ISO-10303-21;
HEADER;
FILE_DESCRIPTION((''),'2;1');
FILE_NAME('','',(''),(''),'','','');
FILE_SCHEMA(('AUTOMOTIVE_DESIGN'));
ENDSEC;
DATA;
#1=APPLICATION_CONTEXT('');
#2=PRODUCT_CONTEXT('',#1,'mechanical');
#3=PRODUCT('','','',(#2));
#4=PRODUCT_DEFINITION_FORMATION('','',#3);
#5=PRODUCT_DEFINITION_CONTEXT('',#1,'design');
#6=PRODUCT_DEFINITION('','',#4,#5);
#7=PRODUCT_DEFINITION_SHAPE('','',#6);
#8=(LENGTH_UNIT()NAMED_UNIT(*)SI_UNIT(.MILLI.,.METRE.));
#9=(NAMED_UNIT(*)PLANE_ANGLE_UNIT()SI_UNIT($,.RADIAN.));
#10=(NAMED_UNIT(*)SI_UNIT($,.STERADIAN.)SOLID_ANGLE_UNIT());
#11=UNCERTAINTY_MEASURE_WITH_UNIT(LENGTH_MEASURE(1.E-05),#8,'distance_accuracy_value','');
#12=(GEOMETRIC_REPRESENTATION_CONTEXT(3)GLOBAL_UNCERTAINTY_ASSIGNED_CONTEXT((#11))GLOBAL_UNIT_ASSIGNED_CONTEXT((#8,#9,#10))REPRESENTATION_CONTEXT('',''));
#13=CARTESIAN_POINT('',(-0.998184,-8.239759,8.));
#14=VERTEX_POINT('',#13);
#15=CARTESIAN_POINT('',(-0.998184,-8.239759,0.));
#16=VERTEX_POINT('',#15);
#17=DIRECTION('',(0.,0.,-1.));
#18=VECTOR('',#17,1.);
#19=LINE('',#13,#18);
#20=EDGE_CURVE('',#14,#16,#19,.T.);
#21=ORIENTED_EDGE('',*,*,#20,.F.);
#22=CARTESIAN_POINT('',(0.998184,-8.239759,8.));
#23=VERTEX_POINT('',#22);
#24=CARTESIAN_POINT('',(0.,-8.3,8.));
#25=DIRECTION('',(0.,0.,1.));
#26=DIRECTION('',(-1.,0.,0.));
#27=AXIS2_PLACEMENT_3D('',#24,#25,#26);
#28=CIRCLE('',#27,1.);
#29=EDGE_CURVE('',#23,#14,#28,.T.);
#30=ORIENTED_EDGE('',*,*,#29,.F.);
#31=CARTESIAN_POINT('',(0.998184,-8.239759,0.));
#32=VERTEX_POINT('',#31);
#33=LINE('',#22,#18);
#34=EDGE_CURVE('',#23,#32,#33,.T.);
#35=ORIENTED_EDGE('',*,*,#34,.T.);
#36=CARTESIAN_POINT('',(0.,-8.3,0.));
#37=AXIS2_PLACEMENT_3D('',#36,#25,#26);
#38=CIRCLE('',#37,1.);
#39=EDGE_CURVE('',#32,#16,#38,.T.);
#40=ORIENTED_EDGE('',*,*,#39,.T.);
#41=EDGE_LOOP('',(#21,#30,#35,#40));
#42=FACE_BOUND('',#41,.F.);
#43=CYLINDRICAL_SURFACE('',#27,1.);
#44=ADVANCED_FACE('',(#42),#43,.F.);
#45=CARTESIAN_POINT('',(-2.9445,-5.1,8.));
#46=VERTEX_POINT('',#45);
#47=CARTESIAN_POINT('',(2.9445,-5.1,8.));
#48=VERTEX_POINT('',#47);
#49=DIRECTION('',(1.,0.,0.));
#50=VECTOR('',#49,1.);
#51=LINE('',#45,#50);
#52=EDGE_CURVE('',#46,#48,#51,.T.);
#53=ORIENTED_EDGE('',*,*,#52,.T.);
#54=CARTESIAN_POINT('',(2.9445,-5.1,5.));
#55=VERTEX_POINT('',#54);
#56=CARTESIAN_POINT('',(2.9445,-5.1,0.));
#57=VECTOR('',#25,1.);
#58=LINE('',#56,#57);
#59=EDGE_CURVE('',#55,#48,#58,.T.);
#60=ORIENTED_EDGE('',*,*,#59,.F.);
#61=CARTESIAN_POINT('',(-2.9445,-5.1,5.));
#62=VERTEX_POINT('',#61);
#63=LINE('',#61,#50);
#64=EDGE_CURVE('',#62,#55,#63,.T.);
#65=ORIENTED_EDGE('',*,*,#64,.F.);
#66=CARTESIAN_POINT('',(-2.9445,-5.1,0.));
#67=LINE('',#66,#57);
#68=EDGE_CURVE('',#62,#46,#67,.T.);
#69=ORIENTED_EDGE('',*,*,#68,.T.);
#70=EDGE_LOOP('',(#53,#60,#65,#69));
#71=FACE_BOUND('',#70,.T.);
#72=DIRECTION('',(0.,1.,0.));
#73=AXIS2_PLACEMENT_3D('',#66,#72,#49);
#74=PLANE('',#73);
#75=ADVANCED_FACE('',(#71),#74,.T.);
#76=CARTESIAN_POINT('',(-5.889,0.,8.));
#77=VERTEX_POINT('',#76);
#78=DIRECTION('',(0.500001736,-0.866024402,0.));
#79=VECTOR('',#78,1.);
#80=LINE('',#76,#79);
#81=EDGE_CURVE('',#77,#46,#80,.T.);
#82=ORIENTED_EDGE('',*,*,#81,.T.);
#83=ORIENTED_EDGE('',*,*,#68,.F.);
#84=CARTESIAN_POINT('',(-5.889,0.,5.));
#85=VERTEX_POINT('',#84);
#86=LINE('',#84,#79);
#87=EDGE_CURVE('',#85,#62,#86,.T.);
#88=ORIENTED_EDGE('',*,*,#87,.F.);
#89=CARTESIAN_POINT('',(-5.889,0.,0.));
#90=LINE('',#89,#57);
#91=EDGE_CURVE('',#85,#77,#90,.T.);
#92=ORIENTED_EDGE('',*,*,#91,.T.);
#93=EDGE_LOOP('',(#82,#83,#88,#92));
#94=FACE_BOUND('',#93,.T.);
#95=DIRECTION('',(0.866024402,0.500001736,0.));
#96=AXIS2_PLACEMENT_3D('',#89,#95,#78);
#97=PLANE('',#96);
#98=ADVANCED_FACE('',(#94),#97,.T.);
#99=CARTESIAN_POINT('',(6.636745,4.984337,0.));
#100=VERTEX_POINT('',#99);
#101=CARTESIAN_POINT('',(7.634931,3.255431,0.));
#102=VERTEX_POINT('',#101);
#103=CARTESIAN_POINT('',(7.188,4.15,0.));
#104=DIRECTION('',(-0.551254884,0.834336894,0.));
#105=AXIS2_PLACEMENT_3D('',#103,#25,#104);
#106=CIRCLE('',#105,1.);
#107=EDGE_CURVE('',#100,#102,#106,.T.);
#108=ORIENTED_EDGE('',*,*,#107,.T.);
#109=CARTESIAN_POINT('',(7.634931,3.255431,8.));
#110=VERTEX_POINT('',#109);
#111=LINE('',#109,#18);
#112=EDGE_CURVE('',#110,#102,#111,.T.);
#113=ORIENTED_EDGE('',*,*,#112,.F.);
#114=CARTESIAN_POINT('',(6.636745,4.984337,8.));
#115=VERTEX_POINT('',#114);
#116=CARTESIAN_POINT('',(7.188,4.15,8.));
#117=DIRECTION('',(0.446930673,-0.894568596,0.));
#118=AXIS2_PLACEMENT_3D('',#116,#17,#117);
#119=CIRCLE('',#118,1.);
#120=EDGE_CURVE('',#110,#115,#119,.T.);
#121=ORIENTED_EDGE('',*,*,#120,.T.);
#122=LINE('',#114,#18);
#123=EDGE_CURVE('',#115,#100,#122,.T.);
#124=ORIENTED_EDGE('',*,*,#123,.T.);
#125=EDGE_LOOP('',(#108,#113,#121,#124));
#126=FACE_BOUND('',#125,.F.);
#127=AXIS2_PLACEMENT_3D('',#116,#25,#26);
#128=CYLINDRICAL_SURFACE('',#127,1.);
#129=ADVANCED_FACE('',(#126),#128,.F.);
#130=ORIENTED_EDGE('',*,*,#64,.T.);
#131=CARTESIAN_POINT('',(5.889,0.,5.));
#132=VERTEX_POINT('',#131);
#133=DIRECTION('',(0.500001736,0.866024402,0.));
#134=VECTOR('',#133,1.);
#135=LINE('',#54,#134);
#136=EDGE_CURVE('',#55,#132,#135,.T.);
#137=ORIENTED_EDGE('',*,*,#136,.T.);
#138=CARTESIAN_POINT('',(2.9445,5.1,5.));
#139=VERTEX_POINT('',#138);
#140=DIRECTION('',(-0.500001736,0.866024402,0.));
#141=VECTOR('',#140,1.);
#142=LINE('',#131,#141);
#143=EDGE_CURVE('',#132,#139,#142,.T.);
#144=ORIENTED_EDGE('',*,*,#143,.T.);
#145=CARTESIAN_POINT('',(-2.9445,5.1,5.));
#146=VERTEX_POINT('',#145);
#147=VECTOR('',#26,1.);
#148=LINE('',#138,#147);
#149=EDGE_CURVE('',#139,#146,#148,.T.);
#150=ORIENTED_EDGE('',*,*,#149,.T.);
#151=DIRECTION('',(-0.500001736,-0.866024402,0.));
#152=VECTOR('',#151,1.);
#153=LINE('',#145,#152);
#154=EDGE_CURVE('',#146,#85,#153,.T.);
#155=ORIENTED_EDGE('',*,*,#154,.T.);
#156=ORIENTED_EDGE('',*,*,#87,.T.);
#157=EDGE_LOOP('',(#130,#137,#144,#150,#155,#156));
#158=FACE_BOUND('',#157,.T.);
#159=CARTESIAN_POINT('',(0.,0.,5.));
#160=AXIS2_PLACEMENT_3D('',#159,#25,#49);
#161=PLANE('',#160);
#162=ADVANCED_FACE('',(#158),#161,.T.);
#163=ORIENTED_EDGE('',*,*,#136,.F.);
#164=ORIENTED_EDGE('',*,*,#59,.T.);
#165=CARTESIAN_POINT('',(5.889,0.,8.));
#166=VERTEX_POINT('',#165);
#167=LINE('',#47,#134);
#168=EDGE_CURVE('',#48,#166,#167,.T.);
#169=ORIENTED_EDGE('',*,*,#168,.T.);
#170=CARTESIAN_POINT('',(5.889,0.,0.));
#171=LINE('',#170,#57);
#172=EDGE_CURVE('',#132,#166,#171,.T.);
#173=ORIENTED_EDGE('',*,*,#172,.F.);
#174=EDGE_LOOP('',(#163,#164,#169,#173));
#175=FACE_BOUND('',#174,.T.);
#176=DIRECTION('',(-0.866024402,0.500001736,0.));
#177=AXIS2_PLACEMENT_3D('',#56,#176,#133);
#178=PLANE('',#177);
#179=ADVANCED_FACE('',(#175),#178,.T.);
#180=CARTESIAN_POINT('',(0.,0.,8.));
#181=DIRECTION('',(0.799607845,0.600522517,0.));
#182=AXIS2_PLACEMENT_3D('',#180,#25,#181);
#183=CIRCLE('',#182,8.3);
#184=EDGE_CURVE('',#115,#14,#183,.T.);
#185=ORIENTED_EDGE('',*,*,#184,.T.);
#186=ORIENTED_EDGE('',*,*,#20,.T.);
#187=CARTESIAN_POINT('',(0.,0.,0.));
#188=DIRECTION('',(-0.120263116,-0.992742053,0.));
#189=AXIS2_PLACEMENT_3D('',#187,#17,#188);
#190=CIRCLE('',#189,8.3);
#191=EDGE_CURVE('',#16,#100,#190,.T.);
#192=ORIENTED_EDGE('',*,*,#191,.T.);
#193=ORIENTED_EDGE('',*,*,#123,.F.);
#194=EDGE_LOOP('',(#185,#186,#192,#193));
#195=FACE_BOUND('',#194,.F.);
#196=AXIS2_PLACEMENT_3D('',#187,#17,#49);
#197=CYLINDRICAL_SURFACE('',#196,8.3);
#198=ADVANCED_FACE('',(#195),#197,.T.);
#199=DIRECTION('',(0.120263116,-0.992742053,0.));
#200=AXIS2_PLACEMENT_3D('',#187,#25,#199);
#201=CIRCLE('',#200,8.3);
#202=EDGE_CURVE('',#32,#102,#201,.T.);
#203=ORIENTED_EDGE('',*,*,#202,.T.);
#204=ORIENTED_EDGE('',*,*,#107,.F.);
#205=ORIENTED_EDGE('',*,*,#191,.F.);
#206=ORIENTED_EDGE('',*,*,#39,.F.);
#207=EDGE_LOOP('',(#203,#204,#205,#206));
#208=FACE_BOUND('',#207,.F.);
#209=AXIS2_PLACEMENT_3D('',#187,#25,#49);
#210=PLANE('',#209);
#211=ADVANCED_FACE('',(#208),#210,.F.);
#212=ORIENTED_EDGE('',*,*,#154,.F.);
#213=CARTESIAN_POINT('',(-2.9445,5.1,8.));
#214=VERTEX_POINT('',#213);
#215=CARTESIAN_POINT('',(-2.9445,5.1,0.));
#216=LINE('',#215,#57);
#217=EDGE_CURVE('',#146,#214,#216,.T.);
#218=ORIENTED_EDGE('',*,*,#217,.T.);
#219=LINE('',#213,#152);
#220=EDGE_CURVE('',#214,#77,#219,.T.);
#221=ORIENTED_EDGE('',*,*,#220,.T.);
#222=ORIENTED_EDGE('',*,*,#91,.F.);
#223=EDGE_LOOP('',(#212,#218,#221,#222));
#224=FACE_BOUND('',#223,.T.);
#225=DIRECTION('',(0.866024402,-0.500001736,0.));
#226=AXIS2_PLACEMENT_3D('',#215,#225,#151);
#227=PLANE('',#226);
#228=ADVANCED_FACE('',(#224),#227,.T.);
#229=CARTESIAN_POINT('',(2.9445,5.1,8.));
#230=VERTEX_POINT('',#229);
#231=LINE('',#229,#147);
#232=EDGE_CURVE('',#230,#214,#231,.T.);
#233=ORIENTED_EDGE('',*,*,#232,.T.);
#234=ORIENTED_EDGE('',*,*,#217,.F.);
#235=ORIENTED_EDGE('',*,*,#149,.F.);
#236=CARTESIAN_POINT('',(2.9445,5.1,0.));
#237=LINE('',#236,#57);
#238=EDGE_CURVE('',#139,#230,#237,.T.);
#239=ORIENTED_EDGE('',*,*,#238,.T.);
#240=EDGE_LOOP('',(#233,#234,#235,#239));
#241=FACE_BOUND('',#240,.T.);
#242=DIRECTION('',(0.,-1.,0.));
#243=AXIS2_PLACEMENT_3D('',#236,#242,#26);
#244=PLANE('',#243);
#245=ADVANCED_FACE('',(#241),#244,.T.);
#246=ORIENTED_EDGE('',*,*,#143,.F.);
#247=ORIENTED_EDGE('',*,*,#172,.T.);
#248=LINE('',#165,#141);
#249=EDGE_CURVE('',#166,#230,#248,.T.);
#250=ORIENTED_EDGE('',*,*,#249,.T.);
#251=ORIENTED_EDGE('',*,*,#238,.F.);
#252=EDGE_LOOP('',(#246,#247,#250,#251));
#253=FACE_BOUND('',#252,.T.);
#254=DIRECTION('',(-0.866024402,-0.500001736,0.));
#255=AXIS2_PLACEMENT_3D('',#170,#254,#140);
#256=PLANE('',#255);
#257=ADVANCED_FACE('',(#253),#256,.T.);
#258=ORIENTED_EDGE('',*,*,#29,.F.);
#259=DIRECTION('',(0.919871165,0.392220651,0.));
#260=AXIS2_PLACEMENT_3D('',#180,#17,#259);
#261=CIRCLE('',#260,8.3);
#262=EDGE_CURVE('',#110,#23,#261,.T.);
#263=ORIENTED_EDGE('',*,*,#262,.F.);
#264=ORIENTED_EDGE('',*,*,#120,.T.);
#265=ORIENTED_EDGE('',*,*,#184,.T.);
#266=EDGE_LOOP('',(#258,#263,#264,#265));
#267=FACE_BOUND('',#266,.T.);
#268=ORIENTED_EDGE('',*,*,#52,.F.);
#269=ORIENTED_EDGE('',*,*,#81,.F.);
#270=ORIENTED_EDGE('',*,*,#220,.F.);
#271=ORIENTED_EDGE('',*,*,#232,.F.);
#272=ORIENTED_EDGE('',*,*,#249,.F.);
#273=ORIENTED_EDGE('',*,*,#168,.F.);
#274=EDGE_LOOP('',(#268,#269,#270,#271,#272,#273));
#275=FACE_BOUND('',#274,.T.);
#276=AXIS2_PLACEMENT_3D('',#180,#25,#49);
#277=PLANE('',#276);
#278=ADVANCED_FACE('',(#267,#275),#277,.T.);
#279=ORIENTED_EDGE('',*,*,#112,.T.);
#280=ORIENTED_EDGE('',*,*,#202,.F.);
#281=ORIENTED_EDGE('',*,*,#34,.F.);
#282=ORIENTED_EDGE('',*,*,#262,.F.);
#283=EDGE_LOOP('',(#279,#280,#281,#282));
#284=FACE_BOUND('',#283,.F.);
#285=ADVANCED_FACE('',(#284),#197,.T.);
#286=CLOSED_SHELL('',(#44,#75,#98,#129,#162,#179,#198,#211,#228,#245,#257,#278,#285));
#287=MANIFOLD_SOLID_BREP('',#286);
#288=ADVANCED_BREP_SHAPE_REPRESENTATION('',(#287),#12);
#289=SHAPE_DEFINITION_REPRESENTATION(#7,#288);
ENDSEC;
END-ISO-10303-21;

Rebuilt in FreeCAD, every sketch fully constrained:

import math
import FreeCAD as App
import Part
import Sketcher
from FreeCAD import Vector
Q = App.Units.Quantity

doc = App.newDocument("Part")
body = doc.addObject("PartDesign::Body", "Body")

# Sketch on XY plane
sketch1 = body.newObject("Sketcher::SketchObject", "Sketch")
sketch1.AttachmentSupport = (doc.getObject("XY_Plane"), [""])
sketch1.MapMode = "FlatFace"
sketch1.addGeometry([
    Part.Circle(Vector(0, 0, 0), Vector(0, 0, 1), 8),  # 0
    Part.LineSegment(Vector(6, 0, 0), Vector(3, -5, 0)),  # 1
    Part.LineSegment(Vector(3, -5, 0), Vector(-3, -5, 0)),  # 2
    Part.LineSegment(Vector(-3, -5, 0), Vector(-6, 0, 0)),  # 3
    Part.LineSegment(Vector(-6, 0, 0), Vector(-3, 5, 0)),  # 4
    Part.LineSegment(Vector(-3, 5, 0), Vector(3, 5, 0)),  # 5
    Part.LineSegment(Vector(3, 5, 0), Vector(6, 0, 0)),  # 6
], False)
sketch1.addConstraint([
    Sketcher.Constraint("Coincident", 1, 2, 2, 1),
    Sketcher.Constraint("Coincident", 2, 2, 3, 1),
    Sketcher.Constraint("Coincident", 3, 2, 4, 1),
    Sketcher.Constraint("Coincident", 4, 2, 5, 1),
    Sketcher.Constraint("Coincident", 5, 2, 6, 1),
    Sketcher.Constraint("Coincident", 6, 2, 1, 1),
    Sketcher.Constraint("Horizontal", 2),
    Sketcher.Constraint("Horizontal", 5),
    Sketcher.Constraint("Coincident", 0, 3, -1, 1),
    Sketcher.Constraint("Symmetric", 1, 2, 4, 2, -1, 1),
    Sketcher.Constraint("Symmetric", 3, 2, 6, 2, -1, 1),
    Sketcher.Constraint("PointOnObject", 3, 2, -1),
    Sketcher.Constraint("Parallel", 3, 6),
    Sketcher.Constraint("Vertical", 2, 2, 4, 2),
    Sketcher.Constraint("Diameter", 0, Q("16.6 mm")),
    Sketcher.Constraint("DistanceY", 1, 2, -1, 1, Q("5.1 mm")),
    Sketcher.Constraint("Angle", 1, Q("-120 deg")),
    Sketcher.Constraint("DistanceX", 2, 2, 2, 1, Q("5.889 mm")),
])
pad1 = body.newObject("PartDesign::Pad", "Pad")
pad1.Profile = sketch1
pad1.Length = 8

# Sketch on XY plane
sketch2 = body.newObject("Sketcher::SketchObject", "Sketch001")
sketch2.AttachmentSupport = (doc.getObject("XY_Plane"), [""])
sketch2.MapMode = "FlatFace"
sketch2.addGeometry([
    Part.LineSegment(Vector(-3, -5, 0), Vector(3, -5, 0)),  # 0
    Part.LineSegment(Vector(3, -5, 0), Vector(6, 0, 0)),  # 1
    Part.LineSegment(Vector(6, 0, 0), Vector(3, 5, 0)),  # 2
    Part.LineSegment(Vector(3, 5, 0), Vector(-3, 5, 0)),  # 3
    Part.LineSegment(Vector(-3, 5, 0), Vector(-6, 0, 0)),  # 4
    Part.LineSegment(Vector(-6, 0, 0), Vector(-3, -5, 0)),  # 5
], False)
sketch2.addConstraint([
    Sketcher.Constraint("Coincident", 0, 2, 1, 1),
    Sketcher.Constraint("Coincident", 1, 2, 2, 1),
    Sketcher.Constraint("Coincident", 2, 2, 3, 1),
    Sketcher.Constraint("Coincident", 3, 2, 4, 1),
    Sketcher.Constraint("Coincident", 4, 2, 5, 1),
    Sketcher.Constraint("Coincident", 5, 2, 0, 1),
    Sketcher.Constraint("Horizontal", 0),
    Sketcher.Constraint("Horizontal", 3),
    Sketcher.Constraint("Symmetric", 0, 2, 3, 2, -1, 1),
    Sketcher.Constraint("Symmetric", 1, 2, 4, 2, -1, 1),
    Sketcher.Constraint("PointOnObject", 1, 2, -1),
    Sketcher.Constraint("Parallel", 2, 5),
    Sketcher.Constraint("Vertical", 0, 2, 2, 2),
    Sketcher.Constraint("DistanceY", 0, 2, -1, 1, Q("5.1 mm")),
    Sketcher.Constraint("Angle", 1, Q("60 deg")),
    Sketcher.Constraint("DistanceX", 0, 1, 0, 2, Q("5.889 mm")),
])
pad2 = body.newObject("PartDesign::Pad", "Pad001")
pad2.Profile = sketch2
pad2.Length = 5

# Sketch on XY plane
sketch3 = body.newObject("Sketcher::SketchObject", "Sketch002")
sketch3.AttachmentSupport = (doc.getObject("XY_Plane"), [""])
sketch3.MapMode = "FlatFace"
sketch3.AttachmentOffset = App.Placement(Vector(0, 0, 8), App.Rotation())
sketch3.addGeometry([
    Part.ArcOfCircle(Part.Circle(Vector(0, 0, 0), Vector(0, 0, 1), 8.3), math.radians(-156.91), math.radians(-143.09)),  # 0
    Part.ArcOfCircle(Part.Circle(Vector(-7.2, -4.2, 0), Vector(0, 0, 1), 1), math.radians(117), math.radians(303)),  # 1
    Part.ArcOfCircle(Part.Circle(Vector(-7.2, 4.2, 0), Vector(0, 0, 1), 1), math.radians(57), math.radians(243)),  # 2
    Part.ArcOfCircle(Part.Circle(Vector(0, 0, 0), Vector(0, 0, 1), 8.3), math.radians(143.09), math.radians(156.91)),  # 3
    Part.ArcOfCircle(Part.Circle(Vector(0, -8.3, 0), Vector(0, 0, 1), 1), math.radians(3), math.radians(177)),  # 4
    Part.ArcOfCircle(Part.Circle(Vector(0, 0, 0), Vector(0, 0, 1), 8.3), math.radians(-96.91), math.radians(-83.09)),  # 5
    Part.ArcOfCircle(Part.Circle(Vector(0, 8.3, 0), Vector(0, 0, 1), 1), math.radians(-3), math.radians(183)),  # 6
    Part.ArcOfCircle(Part.Circle(Vector(0, 0, 0), Vector(0, 0, 1), 8.3), math.radians(83.09), math.radians(96.91)),  # 7
    Part.ArcOfCircle(Part.Circle(Vector(0, 0, 0), Vector(0, 0, 1), 8.3), math.radians(-36.91), math.radians(-23.09)),  # 8
    Part.ArcOfCircle(Part.Circle(Vector(7.2, -4.2, 0), Vector(0, 0, 1), 1), math.radians(-123), math.radians(63)),  # 9
    Part.ArcOfCircle(Part.Circle(Vector(0, 0, 0), Vector(0, 0, 1), 8.3), math.radians(23.09), math.radians(36.91)),  # 10
    Part.ArcOfCircle(Part.Circle(Vector(7.2, 4.2, 0), Vector(0, 0, 1), 1), math.radians(123), math.radians(297)),  # 11
], False)
sketch3.addConstraint([
    Sketcher.Constraint("Coincident", 0, 1, 1, 1),
    Sketcher.Constraint("Coincident", 1, 2, 0, 2),
    Sketcher.Constraint("Coincident", 2, 1, 3, 1),
    Sketcher.Constraint("Coincident", 3, 2, 2, 2),
    Sketcher.Constraint("Coincident", 4, 1, 5, 2),
    Sketcher.Constraint("Coincident", 5, 1, 4, 2),
    Sketcher.Constraint("Coincident", 6, 1, 7, 1),
    Sketcher.Constraint("Coincident", 7, 2, 6, 2),
    Sketcher.Constraint("Coincident", 8, 1, 9, 1),
    Sketcher.Constraint("Coincident", 9, 2, 8, 2),
    Sketcher.Constraint("Coincident", 10, 1, 11, 2),
    Sketcher.Constraint("Coincident", 11, 1, 10, 2),
    Sketcher.Constraint("Coincident", 0, 3, -1, 1),
    Sketcher.Constraint("Coincident", 3, 3, -1, 1),
    Sketcher.Constraint("Coincident", 5, 3, -1, 1),
    Sketcher.Constraint("Coincident", 7, 3, -1, 1),
    Sketcher.Constraint("Coincident", 8, 3, -1, 1),
    Sketcher.Constraint("Coincident", 10, 3, -1, 1),
    Sketcher.Constraint("Equal", 1, 2),
    Sketcher.Constraint("Equal", 0, 3),
    Sketcher.Constraint("Equal", 2, 4),
    Sketcher.Constraint("Equal", 3, 5),
    Sketcher.Constraint("Equal", 4, 6),
    Sketcher.Constraint("Equal", 5, 7),
    Sketcher.Constraint("Equal", 7, 8),
    Sketcher.Constraint("Equal", 6, 9),
    Sketcher.Constraint("Equal", 8, 10),
    Sketcher.Constraint("Equal", 9, 11),
    Sketcher.Constraint("Symmetric", 4, 3, 6, 3, -1, 1),
    Sketcher.Constraint("Symmetric", 2, 3, 9, 3, -1, 1),
    Sketcher.Constraint("Symmetric", 1, 3, 11, 3, -1, 1),
    Sketcher.Constraint("Symmetric", 1, 3, 9, 3, -2),
    Sketcher.Constraint("PointOnObject", 4, 3, -2),
    Sketcher.Constraint("Radius", 1, Q("1 mm")),
    Sketcher.Constraint("Radius", 0, Q("8.3 mm")),
    Sketcher.Constraint("DistanceY", 4, 3, -1, 1, Q("8.3 mm")),
    Sketcher.Constraint("DistanceY", 1, 3, 2, 3, Q("8.3 mm")),
    Sketcher.Constraint("DistanceX", 1, 3, -1, 1, Q("7.188 mm")),
])
pocket1 = body.newObject("PartDesign::Pocket", "Pocket")
pocket1.Profile = sketch3
pocket1.Length = 8

doc.recompute()
